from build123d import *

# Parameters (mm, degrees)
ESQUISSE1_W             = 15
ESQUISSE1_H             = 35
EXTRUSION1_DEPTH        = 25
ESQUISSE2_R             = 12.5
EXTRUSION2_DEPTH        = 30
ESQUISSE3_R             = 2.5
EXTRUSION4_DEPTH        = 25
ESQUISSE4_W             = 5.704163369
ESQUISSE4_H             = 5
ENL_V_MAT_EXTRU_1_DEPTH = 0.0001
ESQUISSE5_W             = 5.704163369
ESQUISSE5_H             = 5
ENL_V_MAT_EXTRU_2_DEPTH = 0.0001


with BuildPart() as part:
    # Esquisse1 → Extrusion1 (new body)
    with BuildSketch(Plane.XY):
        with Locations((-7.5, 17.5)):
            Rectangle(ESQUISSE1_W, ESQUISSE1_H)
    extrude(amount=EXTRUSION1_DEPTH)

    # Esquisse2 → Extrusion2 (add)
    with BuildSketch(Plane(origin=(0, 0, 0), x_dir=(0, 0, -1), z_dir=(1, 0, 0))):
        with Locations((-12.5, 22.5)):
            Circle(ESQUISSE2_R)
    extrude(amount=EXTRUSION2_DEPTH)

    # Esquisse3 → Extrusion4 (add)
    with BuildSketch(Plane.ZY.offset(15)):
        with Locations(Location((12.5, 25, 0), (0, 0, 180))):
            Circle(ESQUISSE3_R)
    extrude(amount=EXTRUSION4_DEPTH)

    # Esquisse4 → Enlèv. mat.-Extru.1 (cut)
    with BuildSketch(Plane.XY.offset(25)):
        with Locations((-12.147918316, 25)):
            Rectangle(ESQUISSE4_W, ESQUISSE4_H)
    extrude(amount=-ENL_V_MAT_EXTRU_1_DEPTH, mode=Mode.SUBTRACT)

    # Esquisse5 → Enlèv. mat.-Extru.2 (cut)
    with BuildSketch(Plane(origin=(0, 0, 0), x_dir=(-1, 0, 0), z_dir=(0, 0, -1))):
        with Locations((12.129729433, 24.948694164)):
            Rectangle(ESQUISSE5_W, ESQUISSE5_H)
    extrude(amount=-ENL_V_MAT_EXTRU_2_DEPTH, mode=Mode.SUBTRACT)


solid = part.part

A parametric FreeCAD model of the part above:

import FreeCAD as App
import Part
import Sketcher
from FreeCAD import Vector

doc = App.newDocument("Part")
body = doc.addObject("PartDesign::Body", "Body")

# Sketch on XY plane
sketch1 = body.newObject("Sketcher::SketchObject", "Sketch")
sketch1.AttachmentSupport = (doc.getObject("XY_Plane"), [""])
sketch1.MapMode = "FlatFace"
sketch1.addGeometry(Part.LineSegment(Vector(-15, 35, 0), Vector(-15, 0, 0)), False)
sketch1.addGeometry(Part.LineSegment(Vector(-15, 0, 0), Vector(0, 0, 0)), False)
sketch1.addGeometry(Part.LineSegment(Vector(0, 0, 0), Vector(0, 35, 0)), False)
sketch1.addGeometry(Part.LineSegment(Vector(0, 35, 0), Vector(-15, 35, 0)), False)
sketch1.addConstraint(Sketcher.Constraint("Coincident", 0, 2, 1, 1))
sketch1.addConstraint(Sketcher.Constraint("Coincident", 1, 2, 2, 1))
sketch1.addConstraint(Sketcher.Constraint("Coincident", 2, 2, 3, 1))
sketch1.addConstraint(Sketcher.Constraint("Coincident", 3, 2, 0, 1))
sketch1.addConstraint(Sketcher.Constraint("Vertical", 0))
sketch1.addConstraint(Sketcher.Constraint("Horizontal", 1))
sketch1.addConstraint(Sketcher.Constraint("Vertical", 2))
sketch1.addConstraint(Sketcher.Constraint("Horizontal", 3))
sketch1.addConstraint(Sketcher.Constraint("Coincident", 1, 2, -1, 1))
sketch1.addConstraint(Sketcher.Constraint("DistanceX", 1, 1, 1, 2, 15.0))
sketch1.addConstraint(Sketcher.Constraint("DistanceY", 0, 2, 0, 1, 35.0))
pad1 = body.newObject("PartDesign::Pad", "Pad")
pad1.Profile = sketch1
pad1.Length = 25

# Sketch on YZ plane
sketch2 = body.newObject("Sketcher::SketchObject", "Sketch001")
sketch2.AttachmentSupport = (doc.getObject("YZ_Plane"), [""])
sketch2.MapMode = "FlatFace"
sketch2.addGeometry(Part.Circle(Vector(22, 12, 0), Vector(0, 0, 1), 12), False)
sketch2.addConstraint(Sketcher.Constraint("Diameter", 0, 25.0))
sketch2.addConstraint(Sketcher.Constraint("DistanceX", -1, 1, 0, 3, 22.5))
sketch2.addConstraint(Sketcher.Constraint("DistanceY", -1, 1, 0, 3, 12.5))
pad2 = body.newObject("PartDesign::Pad", "Pad001")
pad2.Profile = sketch2
pad2.Length = 30

# Sketch on YZ plane
sketch3 = body.newObject("Sketcher::SketchObject", "Sketch002")
sketch3.AttachmentSupport = (doc.getObject("YZ_Plane"), [""])
sketch3.MapMode = "FlatFace"
sketch3.AttachmentOffset = App.Placement(Vector(0, 0, -15), App.Rotation())
sketch3.addGeometry(Part.Circle(Vector(25, 12.5, 0), Vector(0, 0, 1), 2.5), False)
sketch3.addConstraint(Sketcher.Constraint("Diameter", 0, 5.0))
sketch3.addConstraint(Sketcher.Constraint("DistanceX", -1, 1, 0, 3, 25.0))
sketch3.addConstraint(Sketcher.Constraint("DistanceY", -1, 1, 0, 3, 12.5))
pad3 = body.newObject("PartDesign::Pad", "Pad002")
pad3.Profile = sketch3
pad3.Length = 25
pad3.Reversed = True

# Sketch on XY plane
sketch4 = body.newObject("Sketcher::SketchObject", "Sketch003")
sketch4.AttachmentSupport = (doc.getObject("XY_Plane"), [""])
sketch4.MapMode = "FlatFace"
sketch4.AttachmentOffset = App.Placement(Vector(0, 0, 25), App.Rotation())
sketch4.addGeometry(Part.LineSegment(Vector(-15, 28, 0), Vector(-15, 22, 0)), False)
sketch4.addGeometry(Part.LineSegment(Vector(-15, 22, 0), Vector(-9, 22, 0)), False)
sketch4.addGeometry(Part.LineSegment(Vector(-9, 22, 0), Vector(-9, 28, 0)), False)
sketch4.addGeometry(Part.LineSegment(Vector(-9, 28, 0), Vector(-15, 28, 0)), False)
sketch4.addConstraint(Sketcher.Constraint("Coincident", 0, 2, 1, 1))
sketch4.addConstraint(Sketcher.Constraint("Coincident", 1, 2, 2, 1))
sketch4.addConstraint(Sketcher.Constraint("Coincident", 2, 2, 3, 1))
sketch4.addConstraint(Sketcher.Constraint("Coincident", 3, 2, 0, 1))
sketch4.addConstraint(Sketcher.Constraint("Vertical", 0))
sketch4.addConstraint(Sketcher.Constraint("Horizontal", 1))
sketch4.addConstraint(Sketcher.Constraint("Vertical", 2))
sketch4.addConstraint(Sketcher.Constraint("Horizontal", 3))
sketch4.addConstraint(Sketcher.Constraint("DistanceY", 0, 2, 0, 1, 5.0))
sketch4.addConstraint(Sketcher.Constraint("DistanceX", 0, 2, -1, 1, 15.0))
sketch4.addConstraint(Sketcher.Constraint("DistanceY", -1, 1, 0, 2, 22.5))
sketch4.addConstraint(Sketcher.Constraint("DistanceX", 1, 1, 1, 2, 5.704163))
pocket1 = body.newObject("PartDesign::Pocket", "Pocket")
pocket1.Profile = sketch4
pocket1.Length = 0.0001

# Sketch on XY plane
sketch5 = body.newObject("Sketcher::SketchObject", "Sketch004")
sketch5.AttachmentSupport = (doc.getObject("XY_Plane"), [""])
sketch5.MapMode = "FlatFace"
sketch5.addGeometry(Part.LineSegment(Vector(-9, 27, 0), Vector(-9, 22, 0)), False)
sketch5.addGeometry(Part.LineSegment(Vector(-9, 22, 0), Vector(-15, 22, 0)), False)
sketch5.addGeometry(Part.LineSegment(Vector(-15, 22, 0), Vector(-15, 27, 0)), False)
sketch5.addGeometry(Part.LineSegment(Vector(-15, 27, 0), Vector(-9, 27, 0)), False)
sketch5.addConstraint(Sketcher.Constraint("Coincident", 0, 2, 1, 1))
sketch5.addConstraint(Sketcher.Constraint("Coincident", 1, 2, 2, 1))
sketch5.addConstraint(Sketcher.Constraint("Coincident", 2, 2, 3, 1))
sketch5.addConstraint(Sketcher.Constraint("Coincident", 3, 2, 0, 1))
sketch5.addConstraint(Sketcher.Constraint("Vertical", 0))
sketch5.addConstraint(Sketcher.Constraint("Horizontal", 1))
sketch5.addConstraint(Sketcher.Constraint("Vertical", 2))
sketch5.addConstraint(Sketcher.Constraint("Horizontal", 3))
sketch5.addConstraint(Sketcher.Constraint("DistanceY", 0, 2, 0, 1, 5.0))
sketch5.addConstraint(Sketcher.Constraint("DistanceX", 1, 2, 1, 1, 5.704163))
sketch5.addConstraint(Sketcher.Constraint("DistanceX", 1, 2, -1, 1, 14.981811))
sketch5.addConstraint(Sketcher.Constraint("DistanceY", -1, 1, 0, 2, 22.448694))
pocket2 = body.newObject("PartDesign::Pocket", "Pocket001")
pocket2.Profile = sketch5
pocket2.Length = 0.0001
pocket2.Reversed = True

doc.recompute()
